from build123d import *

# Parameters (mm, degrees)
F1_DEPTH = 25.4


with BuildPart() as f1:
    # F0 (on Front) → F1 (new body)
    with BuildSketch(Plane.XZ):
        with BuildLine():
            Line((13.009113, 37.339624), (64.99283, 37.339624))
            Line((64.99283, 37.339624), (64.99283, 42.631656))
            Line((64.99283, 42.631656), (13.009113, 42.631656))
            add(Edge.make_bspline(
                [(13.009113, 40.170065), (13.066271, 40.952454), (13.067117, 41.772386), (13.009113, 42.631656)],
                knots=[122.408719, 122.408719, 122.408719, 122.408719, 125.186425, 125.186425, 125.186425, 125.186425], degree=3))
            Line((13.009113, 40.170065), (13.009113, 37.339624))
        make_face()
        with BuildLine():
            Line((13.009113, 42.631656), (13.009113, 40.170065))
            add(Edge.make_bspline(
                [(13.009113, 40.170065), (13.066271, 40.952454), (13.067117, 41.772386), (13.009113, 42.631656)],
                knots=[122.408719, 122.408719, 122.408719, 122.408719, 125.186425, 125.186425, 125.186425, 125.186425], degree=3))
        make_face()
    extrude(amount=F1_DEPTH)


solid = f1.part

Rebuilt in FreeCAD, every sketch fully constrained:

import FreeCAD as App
import Part
import Sketcher
from FreeCAD import Vector
Q = App.Units.Quantity

doc = App.newDocument("Part")
body = doc.addObject("PartDesign::Body", "Body")

sketch1 = body.newObject("Sketcher::SketchObject", "Sketch")
sketch1.AttachmentSupport = (doc.getObject("XZ_Plane"), [""])
sketch1.MapMode = "FlatFace"
sketch1.addGeometry(Part.LineSegment(Vector(13, 37, 0), Vector(65, 37, 0)), False)
sketch1.addGeometry(Part.LineSegment(Vector(65, 37, 0), Vector(65, 43, 0)), False)
sketch1.addGeometry(Part.LineSegment(Vector(65, 43, 0), Vector(13, 43, 0)), False)
sketch1.addGeometry(Part.LineSegment(Vector(13, 43, 0), Vector(13, 37, 0)), False)
sketch1.addConstraint(Sketcher.Constraint("Coincident", 0, 2, 1, 1))
sketch1.addConstraint(Sketcher.Constraint("Coincident", 1, 2, 2, 1))
sketch1.addConstraint(Sketcher.Constraint("Coincident", 2, 2, 3, 1))
sketch1.addConstraint(Sketcher.Constraint("Coincident", 3, 2, 0, 1))
sketch1.addConstraint(Sketcher.Constraint("Horizontal", 0))
sketch1.addConstraint(Sketcher.Constraint("Vertical", 1))
sketch1.addConstraint(Sketcher.Constraint("Horizontal", 2))
sketch1.addConstraint(Sketcher.Constraint("Vertical", 3))
sketch1.addConstraint(Sketcher.Constraint("DistanceY", 1, 1, 1, 2, Q("5.292032 mm")))
sketch1.addConstraint(Sketcher.Constraint("DistanceX", 0, 1, 0, 2, Q("51.983717 mm")))
sketch1.addConstraint(Sketcher.Constraint("DistanceX", -1, 1, 0, 2, Q("64.99283 mm")))
sketch1.addConstraint(Sketcher.Constraint("DistanceY", -1, 1, 0, 2, Q("37.339624 mm")))
pad1 = body.newObject("PartDesign::Pad", "Pad")
pad1.Profile = sketch1
pad1.Length = Q("1 in")

doc.recompute()
